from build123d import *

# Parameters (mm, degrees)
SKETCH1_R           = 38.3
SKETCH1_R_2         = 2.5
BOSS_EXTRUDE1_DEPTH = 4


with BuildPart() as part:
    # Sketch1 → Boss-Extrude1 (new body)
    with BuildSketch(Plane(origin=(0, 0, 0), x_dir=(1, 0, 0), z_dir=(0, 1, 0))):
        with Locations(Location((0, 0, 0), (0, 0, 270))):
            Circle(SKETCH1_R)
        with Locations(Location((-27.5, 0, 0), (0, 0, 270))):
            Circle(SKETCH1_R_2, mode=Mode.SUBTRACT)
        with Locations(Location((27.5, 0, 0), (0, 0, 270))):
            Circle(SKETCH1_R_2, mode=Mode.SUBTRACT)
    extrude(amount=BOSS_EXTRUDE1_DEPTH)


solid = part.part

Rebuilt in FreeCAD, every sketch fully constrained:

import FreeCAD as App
import Part
import Sketcher
Q = App.Units.Quantity

doc = App.newDocument("Part")
body = doc.addObject("PartDesign::Body", "Body")

# Sketch on XZ plane
sketch1 = doc.addObject("Sketcher::SketchObject", "Sketch")
body.addObject(sketch1)
sketch1.AttachmentSupport = (doc.XZ_Plane, [""])
sketch1.MapMode = "FlatFace"
sketch1.addGeometry(Part.Circle(App.Vector(0, 0, 0), App.Vector(0, 0, 1), 38.3), False)
sketch1.addGeometry(Part.Circle(App.Vector(-27.5, 0, 0), App.Vector(0, 0, 1), 2.5), False)
sketch1.addGeometry(Part.Circle(App.Vector(27.5, 0, 0), App.Vector(0, 0, 1), 2.5), False)
sketch1.addConstraint(Sketcher.Constraint("Coincident", 0, 3, -1, 1))
sketch1.addConstraint(Sketcher.Constraint("Equal", 1, 2))
sketch1.addConstraint(Sketcher.Constraint("Symmetric", 1, 3, 2, 3, -1, 1))
sketch1.addConstraint(Sketcher.Constraint("PointOnObject", 1, 3, -1))
sketch1.addConstraint(Sketcher.Constraint("Diameter", 1, Q("5 mm")))
sketch1.addConstraint(Sketcher.Constraint("Diameter", 0, Q("76.6 mm")))
sketch1.addConstraint(Sketcher.Constraint("DistanceX", 1, 3, 2, 3, Q("55 mm")))
pad1 = doc.addObject("PartDesign::Pad", "Pad")
body.addObject(pad1)
pad1.Profile = sketch1
pad1.Length = 4
pad1.Reversed = True

doc.recompute()
